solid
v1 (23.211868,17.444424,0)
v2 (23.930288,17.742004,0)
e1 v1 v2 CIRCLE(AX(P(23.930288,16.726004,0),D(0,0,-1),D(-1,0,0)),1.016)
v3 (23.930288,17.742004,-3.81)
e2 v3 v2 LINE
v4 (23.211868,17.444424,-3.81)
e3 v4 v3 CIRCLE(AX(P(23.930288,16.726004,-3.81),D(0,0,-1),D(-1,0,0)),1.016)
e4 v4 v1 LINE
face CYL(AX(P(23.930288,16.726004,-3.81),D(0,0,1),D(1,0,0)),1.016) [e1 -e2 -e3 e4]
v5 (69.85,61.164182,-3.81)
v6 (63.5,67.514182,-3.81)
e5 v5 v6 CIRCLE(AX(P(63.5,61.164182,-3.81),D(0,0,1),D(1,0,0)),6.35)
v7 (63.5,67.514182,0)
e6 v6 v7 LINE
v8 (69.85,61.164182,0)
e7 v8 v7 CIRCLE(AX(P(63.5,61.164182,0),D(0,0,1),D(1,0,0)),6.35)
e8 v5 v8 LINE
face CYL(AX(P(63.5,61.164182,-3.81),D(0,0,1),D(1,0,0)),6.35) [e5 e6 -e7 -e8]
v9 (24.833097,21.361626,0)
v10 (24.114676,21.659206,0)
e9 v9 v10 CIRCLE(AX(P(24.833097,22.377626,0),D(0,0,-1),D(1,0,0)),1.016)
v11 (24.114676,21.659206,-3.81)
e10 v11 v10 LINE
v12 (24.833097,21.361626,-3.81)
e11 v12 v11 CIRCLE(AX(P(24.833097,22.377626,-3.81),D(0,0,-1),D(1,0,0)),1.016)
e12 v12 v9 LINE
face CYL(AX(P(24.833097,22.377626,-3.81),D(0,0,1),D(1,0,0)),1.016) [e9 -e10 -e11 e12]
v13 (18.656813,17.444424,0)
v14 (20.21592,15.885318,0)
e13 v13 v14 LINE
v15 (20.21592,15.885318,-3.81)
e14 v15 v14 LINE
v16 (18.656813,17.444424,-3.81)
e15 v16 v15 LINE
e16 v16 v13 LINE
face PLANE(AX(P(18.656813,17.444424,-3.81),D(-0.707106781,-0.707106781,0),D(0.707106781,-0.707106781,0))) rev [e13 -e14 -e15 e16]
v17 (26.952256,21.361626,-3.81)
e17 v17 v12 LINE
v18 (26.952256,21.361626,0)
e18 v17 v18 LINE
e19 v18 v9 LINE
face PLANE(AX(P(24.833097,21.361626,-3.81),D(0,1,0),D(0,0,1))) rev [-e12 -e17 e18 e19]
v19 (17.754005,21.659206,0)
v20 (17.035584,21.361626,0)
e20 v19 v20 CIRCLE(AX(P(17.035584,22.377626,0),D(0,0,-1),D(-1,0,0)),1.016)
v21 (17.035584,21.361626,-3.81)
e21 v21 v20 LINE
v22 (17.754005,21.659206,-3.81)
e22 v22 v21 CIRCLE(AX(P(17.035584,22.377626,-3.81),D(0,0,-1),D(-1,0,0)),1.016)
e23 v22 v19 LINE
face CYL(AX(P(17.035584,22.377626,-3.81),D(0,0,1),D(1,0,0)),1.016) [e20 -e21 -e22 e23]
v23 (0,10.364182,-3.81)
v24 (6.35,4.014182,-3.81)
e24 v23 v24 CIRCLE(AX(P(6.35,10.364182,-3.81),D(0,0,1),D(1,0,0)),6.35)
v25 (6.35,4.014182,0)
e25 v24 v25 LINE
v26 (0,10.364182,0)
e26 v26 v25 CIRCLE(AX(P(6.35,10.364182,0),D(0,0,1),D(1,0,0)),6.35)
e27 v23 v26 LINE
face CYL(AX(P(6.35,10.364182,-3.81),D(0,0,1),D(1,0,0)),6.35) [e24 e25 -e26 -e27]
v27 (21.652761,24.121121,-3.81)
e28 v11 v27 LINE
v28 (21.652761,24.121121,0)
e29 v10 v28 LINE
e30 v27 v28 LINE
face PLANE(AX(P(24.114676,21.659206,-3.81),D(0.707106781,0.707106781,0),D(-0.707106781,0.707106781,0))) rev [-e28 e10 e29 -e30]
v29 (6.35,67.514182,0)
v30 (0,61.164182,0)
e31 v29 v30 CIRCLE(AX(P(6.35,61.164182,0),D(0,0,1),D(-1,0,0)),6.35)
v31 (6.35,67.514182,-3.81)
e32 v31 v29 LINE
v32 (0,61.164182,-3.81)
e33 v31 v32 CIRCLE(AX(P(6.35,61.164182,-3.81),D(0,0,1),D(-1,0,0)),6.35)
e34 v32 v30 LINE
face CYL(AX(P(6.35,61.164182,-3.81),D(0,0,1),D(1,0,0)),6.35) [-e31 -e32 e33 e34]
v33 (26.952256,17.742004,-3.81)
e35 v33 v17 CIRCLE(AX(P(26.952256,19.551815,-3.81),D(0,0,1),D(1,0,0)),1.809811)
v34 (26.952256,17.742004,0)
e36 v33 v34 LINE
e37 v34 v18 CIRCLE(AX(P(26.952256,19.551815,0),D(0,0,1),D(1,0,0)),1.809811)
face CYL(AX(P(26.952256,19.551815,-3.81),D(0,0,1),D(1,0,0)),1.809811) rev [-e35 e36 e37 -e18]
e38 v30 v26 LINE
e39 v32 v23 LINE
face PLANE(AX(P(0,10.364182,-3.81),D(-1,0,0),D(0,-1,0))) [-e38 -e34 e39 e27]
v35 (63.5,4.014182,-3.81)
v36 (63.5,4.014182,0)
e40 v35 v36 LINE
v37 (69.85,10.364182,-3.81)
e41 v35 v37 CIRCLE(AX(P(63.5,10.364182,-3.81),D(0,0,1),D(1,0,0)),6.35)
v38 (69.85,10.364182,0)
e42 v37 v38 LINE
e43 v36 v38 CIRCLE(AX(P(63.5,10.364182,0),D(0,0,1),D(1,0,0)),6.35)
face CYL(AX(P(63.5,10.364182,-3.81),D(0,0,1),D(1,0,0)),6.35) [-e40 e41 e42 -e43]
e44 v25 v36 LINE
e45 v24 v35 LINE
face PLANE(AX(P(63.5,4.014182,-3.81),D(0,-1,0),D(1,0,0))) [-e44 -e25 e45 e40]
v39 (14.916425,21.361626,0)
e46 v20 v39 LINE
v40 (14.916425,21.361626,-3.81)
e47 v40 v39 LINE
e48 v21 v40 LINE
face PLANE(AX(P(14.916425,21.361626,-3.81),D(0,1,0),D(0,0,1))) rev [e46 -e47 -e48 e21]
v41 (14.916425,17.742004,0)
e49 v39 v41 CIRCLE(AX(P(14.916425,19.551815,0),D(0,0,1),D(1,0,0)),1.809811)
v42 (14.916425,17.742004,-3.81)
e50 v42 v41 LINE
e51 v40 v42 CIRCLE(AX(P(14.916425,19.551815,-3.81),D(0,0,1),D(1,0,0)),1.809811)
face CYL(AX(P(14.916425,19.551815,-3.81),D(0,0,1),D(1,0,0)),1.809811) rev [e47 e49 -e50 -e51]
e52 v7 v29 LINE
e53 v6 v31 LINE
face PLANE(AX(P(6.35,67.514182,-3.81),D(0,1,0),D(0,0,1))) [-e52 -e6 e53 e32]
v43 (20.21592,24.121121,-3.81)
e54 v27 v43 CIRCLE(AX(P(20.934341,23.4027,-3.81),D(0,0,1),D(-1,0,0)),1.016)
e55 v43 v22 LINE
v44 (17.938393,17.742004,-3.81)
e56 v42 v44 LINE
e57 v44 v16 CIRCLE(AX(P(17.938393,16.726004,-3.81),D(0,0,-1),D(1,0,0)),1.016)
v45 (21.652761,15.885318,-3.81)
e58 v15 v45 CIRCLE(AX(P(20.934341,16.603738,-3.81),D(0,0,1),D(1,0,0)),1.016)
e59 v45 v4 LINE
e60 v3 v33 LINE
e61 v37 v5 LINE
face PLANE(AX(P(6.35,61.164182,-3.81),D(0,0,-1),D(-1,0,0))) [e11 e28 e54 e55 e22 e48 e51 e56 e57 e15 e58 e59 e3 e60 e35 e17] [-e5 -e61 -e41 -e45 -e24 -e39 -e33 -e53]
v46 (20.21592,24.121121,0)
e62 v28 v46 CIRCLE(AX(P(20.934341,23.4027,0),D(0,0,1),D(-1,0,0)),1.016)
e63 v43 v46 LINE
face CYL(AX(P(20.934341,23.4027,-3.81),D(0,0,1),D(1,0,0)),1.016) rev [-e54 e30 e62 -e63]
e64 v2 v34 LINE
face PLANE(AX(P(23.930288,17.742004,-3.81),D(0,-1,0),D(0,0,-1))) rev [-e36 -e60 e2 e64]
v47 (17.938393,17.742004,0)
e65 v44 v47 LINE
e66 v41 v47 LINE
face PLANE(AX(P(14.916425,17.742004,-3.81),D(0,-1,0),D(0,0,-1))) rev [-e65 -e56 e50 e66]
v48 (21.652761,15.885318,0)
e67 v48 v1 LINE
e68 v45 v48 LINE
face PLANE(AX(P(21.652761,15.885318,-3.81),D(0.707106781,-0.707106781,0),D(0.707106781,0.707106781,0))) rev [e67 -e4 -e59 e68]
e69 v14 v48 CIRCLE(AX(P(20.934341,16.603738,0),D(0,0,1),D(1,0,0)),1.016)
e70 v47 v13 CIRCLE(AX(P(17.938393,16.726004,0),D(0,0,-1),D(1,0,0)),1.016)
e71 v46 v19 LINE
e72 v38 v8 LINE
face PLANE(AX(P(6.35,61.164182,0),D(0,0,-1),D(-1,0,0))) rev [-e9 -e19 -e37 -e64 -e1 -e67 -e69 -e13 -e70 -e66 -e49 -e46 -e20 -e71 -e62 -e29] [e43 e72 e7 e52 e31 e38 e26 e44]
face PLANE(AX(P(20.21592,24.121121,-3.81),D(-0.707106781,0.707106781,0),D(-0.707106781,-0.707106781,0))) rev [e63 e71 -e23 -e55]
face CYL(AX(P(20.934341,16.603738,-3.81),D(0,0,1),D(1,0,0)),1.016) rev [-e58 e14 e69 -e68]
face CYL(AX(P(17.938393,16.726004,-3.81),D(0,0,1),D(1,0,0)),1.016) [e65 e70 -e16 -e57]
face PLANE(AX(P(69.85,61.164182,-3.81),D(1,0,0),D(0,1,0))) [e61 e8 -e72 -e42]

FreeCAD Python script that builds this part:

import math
import FreeCAD as App
import Part
import Sketcher
Q = App.Units.Quantity

doc = App.newDocument("Part")
body = doc.addObject("PartDesign::Body", "Body")

# Sketch on XY plane
sketch1 = body.newObject("Sketcher::SketchObject", "Sketch")
sketch1.AttachmentSupport = (doc.getObject("XY_Plane"), [""])
sketch1.MapMode = "FlatFace"
sketch1.addGeometry([
    Part.LineSegment(App.Vector(0, 61.2, 0), App.Vector(0, 10.4, 0)),  # 0
    Part.ArcOfCircle(Part.Circle(App.Vector(6.3, 10.4, 0), App.Vector(0, 0, 1), 6.3), math.radians(180), math.radians(270)),  # 1
    Part.LineSegment(App.Vector(6.3, 4, 0), App.Vector(63.5, 4, 0)),  # 2
    Part.ArcOfCircle(Part.Circle(App.Vector(63.5, 10.4, 0), App.Vector(0, 0, 1), 6.3), math.radians(-90), math.radians(0)),  # 3
    Part.LineSegment(App.Vector(69.8, 10.4, 0), App.Vector(69.8, 61.2, 0)),  # 4
    Part.ArcOfCircle(Part.Circle(App.Vector(63.5, 61.2, 0), App.Vector(0, 0, 1), 6.3), math.radians(0), math.radians(90)),  # 5
    Part.LineSegment(App.Vector(63.5, 67.5, 0), App.Vector(6.3, 67.5, 0)),  # 6
    Part.ArcOfCircle(Part.Circle(App.Vector(6.3, 61.2, 0), App.Vector(0, 0, 1), 6.3), math.radians(90), math.radians(180)),  # 7
    Part.LineSegment(App.Vector(24.8, 21.4, 0), App.Vector(27, 21.4, 0)),  # 8
    Part.ArcOfCircle(Part.Circle(App.Vector(27, 19.6, 0), App.Vector(0, 0, 1), 1.8), math.radians(-90), math.radians(90)),  # 9
    Part.LineSegment(App.Vector(27, 17.7, 0), App.Vector(23.9, 17.7, 0)),  # 10
    Part.ArcOfCircle(Part.Circle(App.Vector(23.9, 16.7, 0), App.Vector(0, 0, 1), 1), math.radians(90), math.radians(135)),  # 11
    Part.LineSegment(App.Vector(23.2, 17.4, 0), App.Vector(21.7, 15.9, 0)),  # 12
    Part.ArcOfCircle(Part.Circle(App.Vector(20.9, 16.6, 0), App.Vector(0, 0, 1), 1), math.radians(-135), math.radians(-45)),  # 13
    Part.LineSegment(App.Vector(20.2, 15.9, 0), App.Vector(18.7, 17.4, 0)),  # 14
    Part.ArcOfCircle(Part.Circle(App.Vector(17.9, 16.7, 0), App.Vector(0, 0, 1), 1), math.radians(45), math.radians(90)),  # 15
    Part.LineSegment(App.Vector(17.9, 17.7, 0), App.Vector(14.9, 17.7, 0)),  # 16
    Part.ArcOfCircle(Part.Circle(App.Vector(14.9, 19.6, 0), App.Vector(0, 0, 1), 1.8), math.radians(90), math.radians(270)),  # 17
    Part.LineSegment(App.Vector(14.9, 21.4, 0), App.Vector(17, 21.4, 0)),  # 18
    Part.ArcOfCircle(Part.Circle(App.Vector(17, 22.4, 0), App.Vector(0, 0, 1), 1), math.radians(-90), math.radians(-45)),  # 19
    Part.LineSegment(App.Vector(17.8, 21.7, 0), App.Vector(20.2, 24.1, 0)),  # 20
    Part.ArcOfCircle(Part.Circle(App.Vector(20.9, 23.4, 0), App.Vector(0, 0, 1), 1), math.radians(45), math.radians(135)),  # 21
    Part.LineSegment(App.Vector(21.7, 24.1, 0), App.Vector(24.1, 21.7, 0)),  # 22
    Part.ArcOfCircle(Part.Circle(App.Vector(24.8, 22.4, 0), App.Vector(0, 0, 1), 1), math.radians(-135), math.radians(-90)),  # 23
], False)
sketch1.addConstraint([
    Sketcher.Constraint("Tangent", 0, 2, 1, 1),
    Sketcher.Constraint("Tangent", 1, 2, 2, 1),
    Sketcher.Constraint("Tangent", 2, 2, 3, 1),
    Sketcher.Constraint("Tangent", 3, 2, 4, 1),
    Sketcher.Constraint("Tangent", 4, 2, 5, 1),
    Sketcher.Constraint("Tangent", 5, 2, 6, 1),
    Sketcher.Constraint("Tangent", 6, 2, 7, 1),
    Sketcher.Constraint("Tangent", 7, 2, 0, 1),
    Sketcher.Constraint("Tangent", 8, 2, 9, 2),
    Sketcher.Constraint("Tangent", 9, 1, 10, 1),
    Sketcher.Constraint("Tangent", 10, 2, 11, 1),
    Sketcher.Constraint("Tangent", 11, 2, 12, 1),
    Sketcher.Constraint("Tangent", 12, 2, 13, 2),
    Sketcher.Constraint("Tangent", 13, 1, 14, 1),
    Sketcher.Constraint("Tangent", 14, 2, 15, 1),
    Sketcher.Constraint("Tangent", 15, 2, 16, 1),
    Sketcher.Constraint("Tangent", 16, 2, 17, 2),
    Sketcher.Constraint("Tangent", 17, 1, 18, 1),
    Sketcher.Constraint("Tangent", 18, 2, 19, 1),
    Sketcher.Constraint("Tangent", 19, 2, 20, 1),
    Sketcher.Constraint("Tangent", 20, 2, 21, 2),
    Sketcher.Constraint("Tangent", 21, 1, 22, 1),
    Sketcher.Constraint("Tangent", 22, 2, 23, 1),
    Sketcher.Constraint("Tangent", 23, 2, 8, 1),
    Sketcher.Constraint("Vertical", 0),
    Sketcher.Constraint("Horizontal", 2),
    Sketcher.Constraint("Vertical", 4),
    Sketcher.Constraint("Horizontal", 6),
    Sketcher.Constraint("Horizontal", 8),
    Sketcher.Constraint("Horizontal", 10),
    Sketcher.Constraint("Horizontal", 16),
    Sketcher.Constraint("Horizontal", 18),
    Sketcher.Constraint("Equal", 1, 3),
    Sketcher.Constraint("Equal", 3, 5),
    Sketcher.Constraint("Equal", 5, 7),
    Sketcher.Constraint("Equal", 11, 13),
    Sketcher.Constraint("Equal", 13, 15),
    Sketcher.Constraint("Equal", 9, 17),
    Sketcher.Constraint("Equal", 15, 19),
    Sketcher.Constraint("Equal", 19, 21),
    Sketcher.Constraint("Equal", 21, 23),
    Sketcher.Constraint("PointOnObject", 0, 2, -2),
    Sketcher.Constraint("Perpendicular", 12, 14),
    Sketcher.Constraint("Perpendicular", 14, 20),
    Sketcher.Constraint("Perpendicular", 20, 22),
    Sketcher.Constraint("Horizontal", 11, 3, 15, 3),
    Sketcher.Constraint("Horizontal", 12, 2, 13, 1),
    Sketcher.Constraint("Vertical", 13, 3, 21, 3),
    Sketcher.Constraint("Equal", 10, 16),
    Sketcher.Constraint("DistanceY", 0, 2, 0, 1, Q("2 in")),
    Sketcher.Constraint("Radius", 1, Q("0.25 in")),
    Sketcher.Constraint("Radius", 11, Q("0.04 in")),
    Sketcher.Constraint("DistanceX", 2, 1, 2, 2, Q("2.25 in")),
    Sketcher.Constraint("Radius", 9, 1.809811),
    Sketcher.Constraint("DistanceX", 8, 1, 8, 2, 2.119159),
    Sketcher.Constraint("DistanceY", -1, 1, 21, 3, 23.4027),
    Sketcher.Constraint("Distance", 12, 2.20491),
    Sketcher.Constraint("DistanceX", 10, 2, 10, 1, 3.021968),
    Sketcher.Constraint("DistanceX", -1, 1, 11, 3, 23.930288),
    Sketcher.Constraint("DistanceY", 1, 3, 11, 3, 6.361822),
])
pad1 = body.newObject("PartDesign::Pad", "Pad")
pad1.Profile = sketch1
pad1.Length = Q("0.15 in")
pad1.Reversed = True

doc.recompute()
